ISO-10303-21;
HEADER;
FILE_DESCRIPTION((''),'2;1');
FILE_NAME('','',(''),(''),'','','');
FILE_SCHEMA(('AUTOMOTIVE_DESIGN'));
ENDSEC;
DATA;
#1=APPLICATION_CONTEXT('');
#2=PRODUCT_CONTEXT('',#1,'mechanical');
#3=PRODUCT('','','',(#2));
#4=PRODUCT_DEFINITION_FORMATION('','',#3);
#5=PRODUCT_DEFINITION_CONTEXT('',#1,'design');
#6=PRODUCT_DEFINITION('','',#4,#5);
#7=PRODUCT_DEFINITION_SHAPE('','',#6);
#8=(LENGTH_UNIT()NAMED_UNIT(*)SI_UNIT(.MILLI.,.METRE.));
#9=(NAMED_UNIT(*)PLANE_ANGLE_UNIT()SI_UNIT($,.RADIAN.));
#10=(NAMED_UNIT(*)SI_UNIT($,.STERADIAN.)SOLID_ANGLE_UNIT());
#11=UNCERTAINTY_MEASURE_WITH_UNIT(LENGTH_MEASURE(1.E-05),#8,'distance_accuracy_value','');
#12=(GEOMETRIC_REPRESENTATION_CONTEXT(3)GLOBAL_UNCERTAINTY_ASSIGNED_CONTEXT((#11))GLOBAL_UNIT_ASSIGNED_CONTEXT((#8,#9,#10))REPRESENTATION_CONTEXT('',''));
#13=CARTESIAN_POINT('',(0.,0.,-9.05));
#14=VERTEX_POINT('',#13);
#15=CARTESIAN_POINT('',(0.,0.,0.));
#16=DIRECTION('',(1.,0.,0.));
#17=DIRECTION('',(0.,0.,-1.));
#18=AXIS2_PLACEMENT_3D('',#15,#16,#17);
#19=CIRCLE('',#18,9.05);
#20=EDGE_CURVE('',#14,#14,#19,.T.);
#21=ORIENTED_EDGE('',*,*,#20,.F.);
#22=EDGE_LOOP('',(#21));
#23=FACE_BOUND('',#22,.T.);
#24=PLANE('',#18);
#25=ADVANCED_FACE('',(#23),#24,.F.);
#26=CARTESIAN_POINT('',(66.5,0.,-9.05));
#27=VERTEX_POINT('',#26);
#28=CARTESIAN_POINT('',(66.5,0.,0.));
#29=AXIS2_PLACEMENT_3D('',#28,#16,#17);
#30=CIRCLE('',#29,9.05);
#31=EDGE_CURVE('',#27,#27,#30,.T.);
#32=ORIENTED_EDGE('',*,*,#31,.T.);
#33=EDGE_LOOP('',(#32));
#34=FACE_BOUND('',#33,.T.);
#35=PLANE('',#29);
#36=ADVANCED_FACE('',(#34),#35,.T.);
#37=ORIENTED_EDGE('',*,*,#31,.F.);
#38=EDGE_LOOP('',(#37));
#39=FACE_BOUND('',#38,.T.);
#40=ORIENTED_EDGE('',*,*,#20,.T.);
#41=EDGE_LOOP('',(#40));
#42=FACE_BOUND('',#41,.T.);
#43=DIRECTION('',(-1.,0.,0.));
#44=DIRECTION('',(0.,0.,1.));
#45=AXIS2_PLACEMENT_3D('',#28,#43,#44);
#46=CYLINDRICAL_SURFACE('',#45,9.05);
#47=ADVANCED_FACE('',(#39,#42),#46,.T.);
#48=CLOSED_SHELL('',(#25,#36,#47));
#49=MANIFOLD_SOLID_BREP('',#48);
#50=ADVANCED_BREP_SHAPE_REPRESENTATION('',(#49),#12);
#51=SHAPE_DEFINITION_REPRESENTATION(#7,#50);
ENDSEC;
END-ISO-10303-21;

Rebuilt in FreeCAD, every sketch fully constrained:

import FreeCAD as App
import Part
import Sketcher
Q = App.Units.Quantity

doc = App.newDocument("Part")
body = doc.addObject("PartDesign::Body", "Body")

# Sketch on YZ plane
sketch1 = body.newObject("Sketcher::SketchObject", "Sketch")
sketch1.AttachmentSupport = (doc.getObject("YZ_Plane"), [""])
sketch1.MapMode = "FlatFace"
sketch1.addGeometry(Part.Circle(App.Vector(0, 0, 0), App.Vector(0, 0, 1), 9), False)
sketch1.addConstraint(Sketcher.Constraint("Coincident", 0, 3, -1, 1))
sketch1.addConstraint(Sketcher.Constraint("Diameter", 0, Q("18.1 mm")))
pad1 = body.newObject("PartDesign::Pad", "Pad")
pad1.Profile = sketch1
pad1.Length = 66.5

doc.recompute()
